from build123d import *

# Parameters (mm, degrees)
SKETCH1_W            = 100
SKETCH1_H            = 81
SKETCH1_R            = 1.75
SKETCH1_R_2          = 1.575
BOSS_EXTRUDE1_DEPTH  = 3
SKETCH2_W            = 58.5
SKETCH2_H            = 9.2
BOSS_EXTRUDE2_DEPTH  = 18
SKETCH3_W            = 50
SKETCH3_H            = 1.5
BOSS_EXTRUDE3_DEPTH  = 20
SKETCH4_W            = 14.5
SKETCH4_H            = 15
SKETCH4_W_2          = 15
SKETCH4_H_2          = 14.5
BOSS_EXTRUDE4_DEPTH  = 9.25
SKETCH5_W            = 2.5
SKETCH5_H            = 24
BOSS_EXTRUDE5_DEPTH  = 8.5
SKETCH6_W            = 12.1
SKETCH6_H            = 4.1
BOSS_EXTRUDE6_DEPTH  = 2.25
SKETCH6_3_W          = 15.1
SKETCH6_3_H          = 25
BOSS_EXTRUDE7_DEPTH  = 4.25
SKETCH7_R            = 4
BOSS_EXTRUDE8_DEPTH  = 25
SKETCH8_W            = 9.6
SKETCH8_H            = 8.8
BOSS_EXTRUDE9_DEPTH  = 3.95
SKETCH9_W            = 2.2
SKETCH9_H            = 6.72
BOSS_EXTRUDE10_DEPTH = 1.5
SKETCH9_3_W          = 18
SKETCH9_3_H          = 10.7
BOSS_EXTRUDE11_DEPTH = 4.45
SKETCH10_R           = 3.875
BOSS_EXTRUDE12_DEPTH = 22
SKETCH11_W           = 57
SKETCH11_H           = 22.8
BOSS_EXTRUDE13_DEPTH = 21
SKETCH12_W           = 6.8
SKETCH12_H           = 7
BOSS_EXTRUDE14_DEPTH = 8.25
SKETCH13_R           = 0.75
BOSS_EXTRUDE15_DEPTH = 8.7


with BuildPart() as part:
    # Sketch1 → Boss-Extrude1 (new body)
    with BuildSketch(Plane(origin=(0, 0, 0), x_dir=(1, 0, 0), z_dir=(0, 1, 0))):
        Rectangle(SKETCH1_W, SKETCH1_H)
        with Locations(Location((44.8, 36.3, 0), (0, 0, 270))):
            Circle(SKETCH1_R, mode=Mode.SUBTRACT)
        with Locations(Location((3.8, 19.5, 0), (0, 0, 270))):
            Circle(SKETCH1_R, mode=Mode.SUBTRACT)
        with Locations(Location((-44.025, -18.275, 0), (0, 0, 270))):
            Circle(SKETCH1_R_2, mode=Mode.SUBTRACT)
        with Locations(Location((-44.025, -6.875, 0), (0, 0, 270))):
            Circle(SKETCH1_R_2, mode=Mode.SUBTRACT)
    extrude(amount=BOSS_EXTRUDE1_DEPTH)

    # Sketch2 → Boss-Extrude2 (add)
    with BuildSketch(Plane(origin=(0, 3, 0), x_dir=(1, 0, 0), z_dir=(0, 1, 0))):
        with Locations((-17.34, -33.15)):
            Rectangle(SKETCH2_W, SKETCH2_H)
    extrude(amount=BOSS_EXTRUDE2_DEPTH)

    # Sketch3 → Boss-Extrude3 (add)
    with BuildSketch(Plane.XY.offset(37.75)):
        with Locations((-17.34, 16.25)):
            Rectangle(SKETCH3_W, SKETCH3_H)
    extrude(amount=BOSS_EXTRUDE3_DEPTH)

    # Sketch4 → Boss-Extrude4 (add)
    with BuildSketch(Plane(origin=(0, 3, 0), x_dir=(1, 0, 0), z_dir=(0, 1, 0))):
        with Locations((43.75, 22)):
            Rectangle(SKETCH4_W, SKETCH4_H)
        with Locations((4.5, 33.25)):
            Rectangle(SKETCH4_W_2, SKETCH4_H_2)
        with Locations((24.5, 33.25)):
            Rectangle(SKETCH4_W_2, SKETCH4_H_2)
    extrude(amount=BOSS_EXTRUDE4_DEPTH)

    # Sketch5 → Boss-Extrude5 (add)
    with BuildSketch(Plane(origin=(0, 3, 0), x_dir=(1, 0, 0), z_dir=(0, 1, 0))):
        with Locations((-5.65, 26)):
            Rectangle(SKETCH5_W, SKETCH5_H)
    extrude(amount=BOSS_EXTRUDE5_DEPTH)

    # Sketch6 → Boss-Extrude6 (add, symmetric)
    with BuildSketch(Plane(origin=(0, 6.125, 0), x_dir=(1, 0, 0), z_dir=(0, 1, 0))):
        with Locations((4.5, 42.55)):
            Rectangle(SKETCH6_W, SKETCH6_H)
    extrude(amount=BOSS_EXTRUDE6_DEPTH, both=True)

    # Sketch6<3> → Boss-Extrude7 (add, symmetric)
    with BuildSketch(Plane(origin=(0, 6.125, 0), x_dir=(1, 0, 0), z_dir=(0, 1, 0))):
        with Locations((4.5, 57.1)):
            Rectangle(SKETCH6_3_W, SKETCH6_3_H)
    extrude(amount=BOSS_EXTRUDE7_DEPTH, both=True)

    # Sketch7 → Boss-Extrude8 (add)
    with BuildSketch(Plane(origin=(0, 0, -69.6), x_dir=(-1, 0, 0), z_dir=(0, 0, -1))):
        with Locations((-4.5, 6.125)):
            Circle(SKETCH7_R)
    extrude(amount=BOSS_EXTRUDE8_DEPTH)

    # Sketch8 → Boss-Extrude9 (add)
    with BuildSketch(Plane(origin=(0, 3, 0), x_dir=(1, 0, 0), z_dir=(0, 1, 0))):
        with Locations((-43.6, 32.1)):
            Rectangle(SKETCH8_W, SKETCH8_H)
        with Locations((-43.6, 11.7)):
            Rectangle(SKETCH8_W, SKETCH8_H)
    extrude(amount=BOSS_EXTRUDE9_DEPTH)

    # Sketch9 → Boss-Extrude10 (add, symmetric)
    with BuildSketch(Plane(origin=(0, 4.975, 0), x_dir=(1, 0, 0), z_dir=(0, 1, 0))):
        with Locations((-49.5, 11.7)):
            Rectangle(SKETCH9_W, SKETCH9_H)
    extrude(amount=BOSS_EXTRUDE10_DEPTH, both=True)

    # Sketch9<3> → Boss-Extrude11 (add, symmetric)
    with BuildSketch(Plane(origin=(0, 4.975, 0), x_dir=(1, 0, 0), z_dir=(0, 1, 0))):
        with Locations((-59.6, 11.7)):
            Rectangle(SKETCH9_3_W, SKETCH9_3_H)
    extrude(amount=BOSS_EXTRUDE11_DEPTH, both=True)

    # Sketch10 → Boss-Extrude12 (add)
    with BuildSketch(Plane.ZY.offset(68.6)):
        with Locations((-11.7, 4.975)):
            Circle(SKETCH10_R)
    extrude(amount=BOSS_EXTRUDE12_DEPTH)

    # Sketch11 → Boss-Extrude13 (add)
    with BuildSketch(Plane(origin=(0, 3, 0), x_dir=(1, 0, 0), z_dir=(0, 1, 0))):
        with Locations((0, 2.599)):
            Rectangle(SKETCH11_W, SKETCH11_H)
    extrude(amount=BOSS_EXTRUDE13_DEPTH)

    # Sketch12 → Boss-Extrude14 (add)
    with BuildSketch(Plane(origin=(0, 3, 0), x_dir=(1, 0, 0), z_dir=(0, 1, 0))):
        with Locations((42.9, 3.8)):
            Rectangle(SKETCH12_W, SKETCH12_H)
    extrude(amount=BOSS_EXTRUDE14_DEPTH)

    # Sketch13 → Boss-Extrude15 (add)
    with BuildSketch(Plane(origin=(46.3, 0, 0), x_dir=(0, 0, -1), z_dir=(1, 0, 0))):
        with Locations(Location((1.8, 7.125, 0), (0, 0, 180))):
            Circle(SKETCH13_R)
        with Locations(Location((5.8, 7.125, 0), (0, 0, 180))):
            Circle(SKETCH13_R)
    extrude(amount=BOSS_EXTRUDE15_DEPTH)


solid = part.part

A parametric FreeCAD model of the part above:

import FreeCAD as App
import Part
import Sketcher
from FreeCAD import Vector


def add_polygon(sketch, points):
    """Adds a closed chain of lines whose ends are joined by coincident constraints."""
    first, n = sketch.GeometryCount, len(points)
    for a, b in zip(points, points[1:] + points[:1]):
        sketch.addGeometry(Part.LineSegment(App.Vector(*a, 0), App.Vector(*b, 0)), False)
    for i in range(n):
        sketch.addConstraint(Sketcher.Constraint("Coincident", first + i, 2, first + (i + 1) % n, 1))

doc = App.newDocument("Part")
body = doc.addObject("PartDesign::Body", "Body")

# Sketch on XZ plane
sketch1 = doc.addObject("Sketcher::SketchObject", "Sketch")
body.addObject(sketch1)
sketch1.AttachmentSupport = (doc.XZ_Plane, [""])
sketch1.MapMode = "FlatFace"
add_polygon(sketch1, [(-50, -40.5), (-50, 40.5), (50, 40.5), (50, -40.5)])  # lines 0-3
sketch1.addGeometry(Part.Circle(Vector(-44.025, 18.275, 0), Vector(0, 0, 1), 1.575), False)  # 4
sketch1.addGeometry(Part.Circle(Vector(-44.025, 6.875, 0), Vector(0, 0, 1), 1.575), False)  # 5
sketch1.addGeometry(Part.Circle(Vector(3.8, -19.5, 0), Vector(0, 0, 1), 1.75), False)  # 6
sketch1.addGeometry(Part.Circle(Vector(44.8, -36.3, 0), Vector(0, 0, 1), 1.75), False)  # 7
sketch1.addConstraint(Sketcher.Constraint("Vertical", 0))
sketch1.addConstraint(Sketcher.Constraint("Horizontal", 1))
sketch1.addConstraint(Sketcher.Constraint("Vertical", 2))
sketch1.addConstraint(Sketcher.Constraint("Horizontal", 3))
sketch1.addConstraint(Sketcher.Constraint("Equal", 4, 5))
sketch1.addConstraint(Sketcher.Constraint("Equal", 6, 7))
sketch1.addConstraint(Sketcher.Constraint("Symmetric", 0, 2, 2, 2, -1, 1))
sketch1.addConstraint(Sketcher.Constraint("Vertical", 4, 3, 5, 3))
sketch1.addConstraint(Sketcher.Constraint("Diameter", 6, 3.5))
sketch1.addConstraint(Sketcher.Constraint("Diameter", 4, 3.15))
sketch1.addConstraint(Sketcher.Constraint("DistanceX", 1, 1, 1, 2, 100.0))
sketch1.addConstraint(Sketcher.Constraint("DistanceY", 0, 1, 0, 2, 81.0))
sketch1.addConstraint(Sketcher.Constraint("DistanceX", 6, 3, 7, 3, 41.0))
sketch1.addConstraint(Sketcher.Constraint("DistanceY", 6, 3, 0, 2, 60.0))
sketch1.addConstraint(Sketcher.Constraint("DistanceX", -1, 1, 6, 3, 3.8))
sketch1.addConstraint(Sketcher.Constraint("DistanceY", 7, 3, -1, 1, 36.3))
sketch1.addConstraint(Sketcher.Constraint("DistanceY", 5, 3, 4, 3, 11.4))
sketch1.addConstraint(Sketcher.Constraint("DistanceX", 4, 3, -1, 1, 44.025))
sketch1.addConstraint(Sketcher.Constraint("DistanceY", -1, 1, 4, 3, 18.275))
pad1 = doc.addObject("PartDesign::Pad", "Pad")
body.addObject(pad1)
pad1.Profile = sketch1
pad1.Length = 3
pad1.Reversed = True

# Sketch on XZ plane
sketch2 = doc.addObject("Sketcher::SketchObject", "Sketch001")
body.addObject(sketch2)
sketch2.AttachmentSupport = (doc.XZ_Plane, [""])
sketch2.MapMode = "FlatFace"
sketch2.AttachmentOffset = App.Placement(Vector(0, 0, -3), App.Rotation())
add_polygon(sketch2, [(-46.59, 28.55), (-46.59, 37.75), (11.91, 37.75), (11.91, 28.55)])  # lines 0-3
sketch2.addConstraint(Sketcher.Constraint("Vertical", 0))
sketch2.addConstraint(Sketcher.Constraint("Horizontal", 1))
sketch2.addConstraint(Sketcher.Constraint("Vertical", 2))
sketch2.addConstraint(Sketcher.Constraint("Horizontal", 3))
sketch2.addConstraint(Sketcher.Constraint("DistanceX", 1, 1, 1, 2, 58.5))
sketch2.addConstraint(Sketcher.Constraint("DistanceY", 0, 1, 0, 2, 9.2))
sketch2.addConstraint(Sketcher.Constraint("DistanceX", 0, 2, -1, 1, 46.59))
sketch2.addConstraint(Sketcher.Constraint("DistanceY", -1, 1, 0, 2, 37.75))
pad2 = doc.addObject("PartDesign::Pad", "Pad001")
body.addObject(pad2)
pad2.Profile = sketch2
pad2.Length = 18
pad2.Reversed = True

# Sketch on XY plane
sketch3 = doc.addObject("Sketcher::SketchObject", "Sketch002")
body.addObject(sketch3)
sketch3.AttachmentSupport = (doc.XY_Plane, [""])
sketch3.MapMode = "FlatFace"
sketch3.AttachmentOffset = App.Placement(Vector(0, 0, 37.75), App.Rotation())
add_polygon(sketch3, [(-42.34, 17), (-42.34, 15.5), (7.66, 15.5), (7.66, 17)])  # lines 0-3
sketch3.addConstraint(Sketcher.Constraint("Vertical", 0))
sketch3.addConstraint(Sketcher.Constraint("Horizontal", 1))
sketch3.addConstraint(Sketcher.Constraint("Vertical", 2))
sketch3.addConstraint(Sketcher.Constraint("Horizontal", 3))
sketch3.addConstraint(Sketcher.Constraint("DistanceX", 1, 1, 1, 2, 50.0))
sketch3.addConstraint(Sketcher.Constraint("DistanceY", 0, 2, 0, 1, 1.5))
sketch3.addConstraint(Sketcher.Constraint("DistanceY", -1, 1, 2, 2, 17.0))
sketch3.addConstraint(Sketcher.Constraint("DistanceX", 0, 2, -1, 1, 42.34))
pad3 = doc.addObject("PartDesign::Pad", "Pad002")
body.addObject(pad3)
pad3.Profile = sketch3
pad3.Length = 20

# Sketch on XZ plane
sketch4 = doc.addObject("Sketcher::SketchObject", "Sketch003")
body.addObject(sketch4)
sketch4.AttachmentSupport = (doc.XZ_Plane, [""])
sketch4.MapMode = "FlatFace"
sketch4.AttachmentOffset = App.Placement(Vector(0, 0, -3), App.Rotation())
add_polygon(sketch4, [(36.5, -29.5), (36.5, -14.5), (51, -14.5), (51, -29.5)])  # lines 0-3
add_polygon(sketch4, [(-3, -40.5), (-3, -26), (12, -26), (12, -40.5)])  # lines 4-7
add_polygon(sketch4, [(17, -40.5), (17, -26), (32, -26), (32, -40.5)])  # lines 8-11
sketch4.addConstraint(Sketcher.Constraint("Vertical", 0))
sketch4.addConstraint(Sketcher.Constraint("Horizontal", 1))
sketch4.addConstraint(Sketcher.Constraint("Vertical", 2))
sketch4.addConstraint(Sketcher.Constraint("Horizontal", 3))
sketch4.addConstraint(Sketcher.Constraint("Vertical", 4))
sketch4.addConstraint(Sketcher.Constraint("Horizontal", 5))
sketch4.addConstraint(Sketcher.Constraint("Vertical", 6))
sketch4.addConstraint(Sketcher.Constraint("Horizontal", 7))
sketch4.addConstraint(Sketcher.Constraint("Vertical", 8))
sketch4.addConstraint(Sketcher.Constraint("Horizontal", 9))
sketch4.addConstraint(Sketcher.Constraint("Vertical", 10))
sketch4.addConstraint(Sketcher.Constraint("Horizontal", 11))
sketch4.addConstraint(Sketcher.Constraint("Horizontal", 5, 2, 8, 2))
sketch4.addConstraint(Sketcher.Constraint("Horizontal", 7, 2, 10, 2))
sketch4.addConstraint(Sketcher.Constraint("Equal", 7, 9))
sketch4.addConstraint(Sketcher.Constraint("Equal", 11, 0))
sketch4.addConstraint(Sketcher.Constraint("Equal", 3, 4))
sketch4.addConstraint(Sketcher.Constraint("DistanceX", 5, 1, 5, 2, 15.0))
sketch4.addConstraint(Sketcher.Constraint("DistanceX", 1, 1, 1, 2, 14.5))
sketch4.addConstraint(Sketcher.Constraint("DistanceX", -1, 1, 1, 2, 51.0))
sketch4.addConstraint(Sketcher.Constraint("DistanceX", 4, 2, -1, 1, 3.0))
sketch4.addConstraint(Sketcher.Constraint("DistanceY", 4, 2, -1, 1, 26.0))
sketch4.addConstraint(Sketcher.Constraint("DistanceX", -1, 1, 8, 2, 17.0))
sketch4.addConstraint(Sketcher.Constraint("DistanceY", 6, 2, 3, 2, 11.0))
pad4 = doc.addObject("PartDesign::Pad", "Pad003")
body.addObject(pad4)
pad4.Profile = sketch4
pad4.Length = 9.25
pad4.Reversed = True

# Sketch on XZ plane
sketch5 = doc.addObject("Sketcher::SketchObject", "Sketch004")
body.addObject(sketch5)
sketch5.AttachmentSupport = (doc.XZ_Plane, [""])
sketch5.MapMode = "FlatFace"
sketch5.AttachmentOffset = App.Placement(Vector(0, 0, -3), App.Rotation())
add_polygon(sketch5, [(-6.9, -38), (-6.9, -14), (-4.4, -14), (-4.4, -38)])  # lines 0-3
sketch5.addConstraint(Sketcher.Constraint("Vertical", 0))
sketch5.addConstraint(Sketcher.Constraint("Horizontal", 1))
sketch5.addConstraint(Sketcher.Constraint("Vertical", 2))
sketch5.addConstraint(Sketcher.Constraint("Horizontal", 3))
sketch5.addConstraint(Sketcher.Constraint("DistanceY", 0, 1, 0, 2, 24.0))
sketch5.addConstraint(Sketcher.Constraint("DistanceX", 1, 1, 1, 2, 2.5))
sketch5.addConstraint(Sketcher.Constraint("DistanceY", 0, 2, -1, 1, 14.0))
sketch5.addConstraint(Sketcher.Constraint("DistanceX", 0, 2, -1, 1, 6.9))
pad5 = doc.addObject("PartDesign::Pad", "Pad004")
body.addObject(pad5)
pad5.Profile = sketch5
pad5.Length = 8.5
pad5.Reversed = True

# Sketch on XZ plane
sketch6 = doc.addObject("Sketcher::SketchObject", "Sketch005")
body.addObject(sketch6)
sketch6.AttachmentSupport = (doc.XZ_Plane, [""])
sketch6.MapMode = "FlatFace"
sketch6.AttachmentOffset = App.Placement(Vector(0, 0, -6.125), App.Rotation())
add_polygon(sketch6, [(-1.55, -44.6), (-1.55, -40.5), (10.55, -40.5), (10.55, -44.6)])  # lines 0-3
sketch6.addConstraint(Sketcher.Constraint("Vertical", 0))
sketch6.addConstraint(Sketcher.Constraint("Horizontal", 1))
sketch6.addConstraint(Sketcher.Constraint("Vertical", 2))
sketch6.addConstraint(Sketcher.Constraint("Horizontal", 3))
sketch6.addConstraint(Sketcher.Constraint("DistanceX", 1, 1, 1, 2, 12.1))
sketch6.addConstraint(Sketcher.Constraint("DistanceY", 0, 1, 0, 2, 4.1))
sketch6.addConstraint(Sketcher.Constraint("DistanceY", 0, 2, -1, 1, 40.5))
sketch6.addConstraint(Sketcher.Constraint("DistanceX", 0, 2, -1, 1, 1.55))
pad6 = doc.addObject("PartDesign::Pad", "Pad005")
body.addObject(pad6)
pad6.Profile = sketch6
pad6.Length = 4.5
pad6.Midplane = True

# Sketch on XZ plane
sketch7 = doc.addObject("Sketcher::SketchObject", "Sketch006")
body.addObject(sketch7)
sketch7.AttachmentSupport = (doc.XZ_Plane, [""])
sketch7.MapMode = "FlatFace"
sketch7.AttachmentOffset = App.Placement(Vector(0, 0, -6.125), App.Rotation())
add_polygon(sketch7, [(-3.05, -69.6), (-3.05, -44.6), (12.05, -44.6), (12.05, -69.6)])  # lines 0-3
sketch7.addConstraint(Sketcher.Constraint("Vertical", 0))
sketch7.addConstraint(Sketcher.Constraint("Horizontal", 1))
sketch7.addConstraint(Sketcher.Constraint("Vertical", 2))
sketch7.addConstraint(Sketcher.Constraint("Horizontal", 3))
sketch7.addConstraint(Sketcher.Constraint("DistanceY", 0, 1, 0, 2, 25.0))
sketch7.addConstraint(Sketcher.Constraint("DistanceX", 1, 1, 1, 2, 15.1))
sketch7.addConstraint(Sketcher.Constraint("DistanceY", 0, 2, -1, 1, 44.6))
sketch7.addConstraint(Sketcher.Constraint("DistanceX", 0, 2, -1, 1, 3.05))
pad7 = doc.addObject("PartDesign::Pad", "Pad006")
body.addObject(pad7)
pad7.Profile = sketch7
pad7.Length = 8.5
pad7.Midplane = True

# Sketch on XY plane
sketch8 = doc.addObject("Sketcher::SketchObject", "Sketch007")
body.addObject(sketch8)
sketch8.AttachmentSupport = (doc.XY_Plane, [""])
sketch8.MapMode = "FlatFace"
sketch8.AttachmentOffset = App.Placement(Vector(0, 0, -69.6), App.Rotation())
sketch8.addGeometry(Part.Circle(Vector(4.5, 6.125, 0), Vector(0, 0, 1), 4), False)
sketch8.addConstraint(Sketcher.Constraint("Diameter", 0, 8.0))
sketch8.addConstraint(Sketcher.Constraint("DistanceX", -1, 1, 0, 3, 4.5))
sketch8.addConstraint(Sketcher.Constraint("DistanceY", -1, 1, 0, 3, 6.125))
pad8 = doc.addObject("PartDesign::Pad", "Pad007")
body.addObject(pad8)
pad8.Profile = sketch8
pad8.Length = 25
pad8.Reversed = True

# Sketch on XZ plane
sketch9 = doc.addObject("Sketcher::SketchObject", "Sketch008")
body.addObject(sketch9)
sketch9.AttachmentSupport = (doc.XZ_Plane, [""])
sketch9.MapMode = "FlatFace"
sketch9.AttachmentOffset = App.Placement(Vector(0, 0, -3), App.Rotation())
add_polygon(sketch9, [(-48.4, -36.5), (-48.4, -27.7), (-38.8, -27.7), (-38.8, -36.5)])  # lines 0-3
add_polygon(sketch9, [(-48.4, -16.1), (-48.4, -7.3), (-38.8, -7.3), (-38.8, -16.1)])  # lines 4-7
sketch9.addConstraint(Sketcher.Constraint("Vertical", 0))
sketch9.addConstraint(Sketcher.Constraint("Horizontal", 1))
sketch9.addConstraint(Sketcher.Constraint("Vertical", 2))
sketch9.addConstraint(Sketcher.Constraint("Horizontal", 3))
sketch9.addConstraint(Sketcher.Constraint("Vertical", 4))
sketch9.addConstraint(Sketcher.Constraint("Horizontal", 5))
sketch9.addConstraint(Sketcher.Constraint("Vertical", 6))
sketch9.addConstraint(Sketcher.Constraint("Horizontal", 7))
sketch9.addConstraint(Sketcher.Constraint("Vertical", 3, 2, 4, 2))
sketch9.addConstraint(Sketcher.Constraint("Vertical", 2, 2, 5, 2))
sketch9.addConstraint(Sketcher.Constraint("Equal", 2, 4))
sketch9.addConstraint(Sketcher.Constraint("DistanceX", 1, 1, 1, 2, 9.6))
sketch9.addConstraint(Sketcher.Constraint("DistanceY", 0, 1, 0, 2, 8.8))
sketch9.addConstraint(Sketcher.Constraint("DistanceX", 0, 2, -1, 1, 48.4))
sketch9.addConstraint(Sketcher.Constraint("DistanceY", 0, 2, -1, 1, 27.7))
sketch9.addConstraint(Sketcher.Constraint("DistanceY", 4, 2, -1, 1, 7.3))
pad9 = doc.addObject("PartDesign::Pad", "Pad008")
body.addObject(pad9)
pad9.Profile = sketch9
pad9.Length = 3.95
pad9.Reversed = True

# Sketch on XZ plane
sketch10 = doc.addObject("Sketcher::SketchObject", "Sketch009")
body.addObject(sketch10)
sketch10.AttachmentSupport = (doc.XZ_Plane, [""])
sketch10.MapMode = "FlatFace"
sketch10.AttachmentOffset = App.Placement(Vector(0, 0, -4.975), App.Rotation())
add_polygon(sketch10, [(-50.6, -15.06), (-50.6, -8.34), (-48.4, -8.34), (-48.4, -15.06)])  # lines 0-3
sketch10.addConstraint(Sketcher.Constraint("Vertical", 0))
sketch10.addConstraint(Sketcher.Constraint("Horizontal", 1))
sketch10.addConstraint(Sketcher.Constraint("Vertical", 2))
sketch10.addConstraint(Sketcher.Constraint("Horizontal", 3))
sketch10.addConstraint(Sketcher.Constraint("DistanceX", 1, 1, 1, 2, 2.2))
sketch10.addConstraint(Sketcher.Constraint("DistanceY", 0, 1, 0, 2, 6.72))
sketch10.addConstraint(Sketcher.Constraint("DistanceX", 0, 2, -1, 1, 50.6))
sketch10.addConstraint(Sketcher.Constraint("DistanceY", 0, 2, -1, 1, 8.34))
pad10 = doc.addObject("PartDesign::Pad", "Pad009")
body.addObject(pad10)
pad10.Profile = sketch10
pad10.Length = 3
pad10.Midplane = True

# Sketch on XZ plane
sketch11 = doc.addObject("Sketcher::SketchObject", "Sketch010")
body.addObject(sketch11)
sketch11.AttachmentSupport = (doc.XZ_Plane, [""])
sketch11.MapMode = "FlatFace"
sketch11.AttachmentOffset = App.Placement(Vector(0, 0, -4.975), App.Rotation())
add_polygon(sketch11, [(-68.6, -17.05), (-68.6, -6.35), (-50.6, -6.35), (-50.6, -17.05)])  # lines 0-3
sketch11.addConstraint(Sketcher.Constraint("Vertical", 0))
sketch11.addConstraint(Sketcher.Constraint("Horizontal", 1))
sketch11.addConstraint(Sketcher.Constraint("Vertical", 2))
sketch11.addConstraint(Sketcher.Constraint("Horizontal", 3))
sketch11.addConstraint(Sketcher.Constraint("DistanceX", 1, 1, 1, 2, 18.0))
sketch11.addConstraint(Sketcher.Constraint("DistanceY", 0, 1, 0, 2, 10.7))
sketch11.addConstraint(Sketcher.Constraint("DistanceX", 0, 2, -1, 1, 68.6))
sketch11.addConstraint(Sketcher.Constraint("DistanceY", 0, 2, -1, 1, 6.35))
pad11 = doc.addObject("PartDesign::Pad", "Pad010")
body.addObject(pad11)
pad11.Profile = sketch11
pad11.Length = 8.9
pad11.Midplane = True

# Sketch on YZ plane
sketch12 = doc.addObject("Sketcher::SketchObject", "Sketch011")
body.addObject(sketch12)
sketch12.AttachmentSupport = (doc.YZ_Plane, [""])
sketch12.MapMode = "FlatFace"
sketch12.AttachmentOffset = App.Placement(Vector(0, 0, -68.6), App.Rotation())
sketch12.addGeometry(Part.Circle(Vector(4.975, -11.7, 0), Vector(0, 0, 1), 3.875), False)
sketch12.addConstraint(Sketcher.Constraint("Diameter", 0, 7.75))
sketch12.addConstraint(Sketcher.Constraint("DistanceY", 0, 3, -1, 1, 11.7))
sketch12.addConstraint(Sketcher.Constraint("DistanceX", -1, 1, 0, 3, 4.975))
pad12 = doc.addObject("PartDesign::Pad", "Pad011")
body.addObject(pad12)
pad12.Profile = sketch12
pad12.Length = 22
pad12.Reversed = True

# Sketch on XZ plane
sketch13 = doc.addObject("Sketcher::SketchObject", "Sketch012")
body.addObject(sketch13)
sketch13.AttachmentSupport = (doc.XZ_Plane, [""])
sketch13.MapMode = "FlatFace"
sketch13.AttachmentOffset = App.Placement(Vector(0, 0, -3), App.Rotation())
add_polygon(sketch13, [(-28.5, -13.999), (-28.5, 8.801), (28.5, 8.801), (28.5, -13.999)])  # lines 0-3
sketch13.addConstraint(Sketcher.Constraint("Vertical", 0))
sketch13.addConstraint(Sketcher.Constraint("Horizontal", 1))
sketch13.addConstraint(Sketcher.Constraint("Vertical", 2))
sketch13.addConstraint(Sketcher.Constraint("Horizontal", 3))
sketch13.addConstraint(Sketcher.Constraint("DistanceX", 1, 1, 1, 2, 57.0))
sketch13.addConstraint(Sketcher.Constraint("DistanceY", 0, 1, 0, 2, 22.8))
sketch13.addConstraint(Sketcher.Constraint("DistanceX", 0, 2, -1, 1, 28.5))
sketch13.addConstraint(Sketcher.Constraint("DistanceY", -1, 1, 0, 2, 8.801))
pad13 = doc.addObject("PartDesign::Pad", "Pad012")
body.addObject(pad13)
pad13.Profile = sketch13
pad13.Length = 21
pad13.Reversed = True

# Sketch on XZ plane
sketch14 = doc.addObject("Sketcher::SketchObject", "Sketch013")
body.addObject(sketch14)
sketch14.AttachmentSupport = (doc.XZ_Plane, [""])
sketch14.MapMode = "FlatFace"
sketch14.AttachmentOffset = App.Placement(Vector(0, 0, -3), App.Rotation())
add_polygon(sketch14, [(39.5, -7.3), (39.5, -0.3), (46.3, -0.3), (46.3, -7.3)])  # lines 0-3
sketch14.addConstraint(Sketcher.Constraint("Vertical", 0))
sketch14.addConstraint(Sketcher.Constraint("Horizontal", 1))
sketch14.addConstraint(Sketcher.Constraint("Vertical", 2))
sketch14.addConstraint(Sketcher.Constraint("Horizontal", 3))
sketch14.addConstraint(Sketcher.Constraint("DistanceY", 0, 1, 0, 2, 7.0))
sketch14.addConstraint(Sketcher.Constraint("DistanceX", 1, 1, 1, 2, 6.8))
sketch14.addConstraint(Sketcher.Constraint("DistanceX", -1, 1, 0, 2, 39.5))
sketch14.addConstraint(Sketcher.Constraint("DistanceY", 0, 2, -1, 1, 0.3))
pad14 = doc.addObject("PartDesign::Pad", "Pad013")
body.addObject(pad14)
pad14.Profile = sketch14
pad14.Length = 8.25
pad14.Reversed = True

# Sketch on YZ plane
sketch15 = doc.addObject("Sketcher::SketchObject", "Sketch014")
body.addObject(sketch15)
sketch15.AttachmentSupport = (doc.YZ_Plane, [""])
sketch15.MapMode = "FlatFace"
sketch15.AttachmentOffset = App.Placement(Vector(0, 0, 46.3), App.Rotation())
sketch15.addGeometry(Part.Circle(Vector(7.125, -1.8, 0), Vector(0, 0, 1), 0.75), False)
sketch15.addGeometry(Part.Circle(Vector(7.125, -5.8, 0), Vector(0, 0, 1), 0.75), False)
sketch15.addConstraint(Sketcher.Constraint("Equal", 0, 1))
sketch15.addConstraint(Sketcher.Constraint("Vertical", 0, 3, 1, 3))
sketch15.addConstraint(Sketcher.Constraint("Diameter", 0, 1.5))
sketch15.addConstraint(Sketcher.Constraint("DistanceY", 1, 3, 0, 3, 4.0))
sketch15.addConstraint(Sketcher.Constraint("DistanceY", 0, 3, -1, 1, 1.8))
sketch15.addConstraint(Sketcher.Constraint("DistanceX", -1, 1, 0, 3, 7.125))
pad15 = doc.addObject("PartDesign::Pad", "Pad014")
body.addObject(pad15)
pad15.Profile = sketch15
pad15.Length = 8.7

doc.recompute()
